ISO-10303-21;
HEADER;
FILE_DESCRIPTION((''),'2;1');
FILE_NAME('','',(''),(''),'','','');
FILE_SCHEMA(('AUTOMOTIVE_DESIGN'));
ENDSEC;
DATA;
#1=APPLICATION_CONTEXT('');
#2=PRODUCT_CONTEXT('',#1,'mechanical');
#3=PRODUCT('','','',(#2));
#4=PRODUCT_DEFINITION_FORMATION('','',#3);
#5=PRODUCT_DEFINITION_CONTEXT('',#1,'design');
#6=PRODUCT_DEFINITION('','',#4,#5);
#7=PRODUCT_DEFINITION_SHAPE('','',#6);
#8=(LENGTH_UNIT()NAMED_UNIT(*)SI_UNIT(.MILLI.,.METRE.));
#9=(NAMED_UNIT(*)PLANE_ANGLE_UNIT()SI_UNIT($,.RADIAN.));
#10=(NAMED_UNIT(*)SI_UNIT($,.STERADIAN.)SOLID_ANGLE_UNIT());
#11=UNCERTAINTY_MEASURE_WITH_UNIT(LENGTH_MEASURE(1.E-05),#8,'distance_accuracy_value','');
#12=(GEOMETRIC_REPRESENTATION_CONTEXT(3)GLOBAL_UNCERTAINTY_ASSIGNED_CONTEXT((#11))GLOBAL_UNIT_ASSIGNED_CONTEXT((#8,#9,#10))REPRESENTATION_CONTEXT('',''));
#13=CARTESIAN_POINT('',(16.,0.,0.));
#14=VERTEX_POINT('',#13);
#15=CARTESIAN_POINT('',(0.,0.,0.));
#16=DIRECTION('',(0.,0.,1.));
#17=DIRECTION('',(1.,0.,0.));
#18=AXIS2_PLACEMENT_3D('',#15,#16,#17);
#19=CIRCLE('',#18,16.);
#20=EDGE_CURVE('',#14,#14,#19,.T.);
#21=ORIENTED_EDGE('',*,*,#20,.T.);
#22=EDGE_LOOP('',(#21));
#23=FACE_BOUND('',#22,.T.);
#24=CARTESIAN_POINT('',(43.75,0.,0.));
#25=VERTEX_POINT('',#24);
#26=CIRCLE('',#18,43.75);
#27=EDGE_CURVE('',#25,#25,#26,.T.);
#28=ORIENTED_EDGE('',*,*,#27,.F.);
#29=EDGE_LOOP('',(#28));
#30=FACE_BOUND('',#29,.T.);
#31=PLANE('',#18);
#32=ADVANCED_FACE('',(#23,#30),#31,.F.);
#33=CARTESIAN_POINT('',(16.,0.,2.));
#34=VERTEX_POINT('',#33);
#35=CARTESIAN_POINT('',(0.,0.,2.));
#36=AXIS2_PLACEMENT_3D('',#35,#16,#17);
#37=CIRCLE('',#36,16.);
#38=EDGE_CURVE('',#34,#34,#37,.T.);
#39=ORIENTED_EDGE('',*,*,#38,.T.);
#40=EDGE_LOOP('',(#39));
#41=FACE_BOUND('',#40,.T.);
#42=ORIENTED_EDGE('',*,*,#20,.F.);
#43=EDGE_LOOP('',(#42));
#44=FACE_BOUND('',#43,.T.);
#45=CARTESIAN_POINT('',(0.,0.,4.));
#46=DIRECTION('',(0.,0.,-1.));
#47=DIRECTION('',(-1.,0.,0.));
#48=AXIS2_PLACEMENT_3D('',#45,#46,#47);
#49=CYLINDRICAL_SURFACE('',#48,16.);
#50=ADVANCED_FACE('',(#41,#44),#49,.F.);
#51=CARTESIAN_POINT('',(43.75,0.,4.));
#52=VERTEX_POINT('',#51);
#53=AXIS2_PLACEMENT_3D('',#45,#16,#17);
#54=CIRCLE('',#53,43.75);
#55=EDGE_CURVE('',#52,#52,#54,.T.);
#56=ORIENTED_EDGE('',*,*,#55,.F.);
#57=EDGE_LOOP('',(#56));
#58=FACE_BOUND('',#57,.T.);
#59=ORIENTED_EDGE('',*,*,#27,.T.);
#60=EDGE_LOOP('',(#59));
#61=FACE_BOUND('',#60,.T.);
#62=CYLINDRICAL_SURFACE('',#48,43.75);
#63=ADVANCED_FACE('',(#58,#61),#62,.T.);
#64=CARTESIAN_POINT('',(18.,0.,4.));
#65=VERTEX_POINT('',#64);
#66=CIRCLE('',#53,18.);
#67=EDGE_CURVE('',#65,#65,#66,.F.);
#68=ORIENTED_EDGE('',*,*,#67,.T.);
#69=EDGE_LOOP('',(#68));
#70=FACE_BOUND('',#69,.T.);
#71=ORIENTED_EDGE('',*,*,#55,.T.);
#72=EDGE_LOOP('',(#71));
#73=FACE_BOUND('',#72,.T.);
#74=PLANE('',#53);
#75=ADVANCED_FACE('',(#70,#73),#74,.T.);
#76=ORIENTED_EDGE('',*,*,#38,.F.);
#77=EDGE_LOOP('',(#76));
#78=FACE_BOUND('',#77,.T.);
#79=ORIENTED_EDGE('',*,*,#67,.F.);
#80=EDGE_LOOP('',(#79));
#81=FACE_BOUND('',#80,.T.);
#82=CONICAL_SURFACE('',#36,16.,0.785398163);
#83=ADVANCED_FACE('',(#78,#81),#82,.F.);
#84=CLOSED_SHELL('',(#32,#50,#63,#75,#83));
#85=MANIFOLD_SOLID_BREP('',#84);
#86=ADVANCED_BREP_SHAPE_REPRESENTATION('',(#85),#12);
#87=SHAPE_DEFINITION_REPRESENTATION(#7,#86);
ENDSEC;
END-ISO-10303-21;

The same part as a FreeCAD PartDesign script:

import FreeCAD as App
import Part
import Sketcher
Q = App.Units.Quantity


def edges_at(feature, points):
    """Names of the edges that pass closest to the given points."""
    edges = feature.Shape.Edges
    near = lambda p: min(range(len(edges)), key=lambda i: edges[i].distToShape(Part.Vertex(*p))[0])
    return sorted({f"Edge{near(p) + 1}" for p in points})

doc = App.newDocument("Part")
body = doc.addObject("PartDesign::Body", "Body")

sketch1 = body.newObject("Sketcher::SketchObject", "Sketch")
sketch1.AttachmentSupport = (doc.getObject("XY_Plane"), [""])
sketch1.MapMode = "FlatFace"
sketch1.addGeometry(Part.Circle(App.Vector(0, 0, 0), App.Vector(0, 0, 1), 43.75), False)
sketch1.addGeometry(Part.Circle(App.Vector(0, 0, 0), App.Vector(0, 0, 1), 16), False)
sketch1.addConstraint(Sketcher.Constraint("Coincident", 0, 3, -1, 1))
sketch1.addConstraint(Sketcher.Constraint("Coincident", 1, 3, -1, 1))
sketch1.addConstraint(Sketcher.Constraint("Diameter", 1, Q("32 mm")))
sketch1.addConstraint(Sketcher.Constraint("Diameter", 0, Q("87.5 mm")))
pad1 = body.newObject("PartDesign::Pad", "Pad")
pad1.Profile = sketch1
pad1.Length = 4
doc.recompute()

chamfer = body.newObject("PartDesign::Chamfer", "Chamfer")
chamfer.Base = (pad1, edges_at(pad1, [(-16, 0, 4)]))
chamfer.Size = 2

doc.recompute()
